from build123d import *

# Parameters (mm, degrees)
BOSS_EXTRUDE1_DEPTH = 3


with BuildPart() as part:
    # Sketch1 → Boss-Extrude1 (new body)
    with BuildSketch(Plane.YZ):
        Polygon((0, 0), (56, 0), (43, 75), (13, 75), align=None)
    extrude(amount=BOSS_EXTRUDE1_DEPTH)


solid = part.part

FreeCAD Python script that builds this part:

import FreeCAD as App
import Part
import Sketcher

V = App.Vector


def add_polygon(sketch, points):
    """Adds a closed chain of lines whose ends are joined by coincident constraints."""
    first, n = sketch.GeometryCount, len(points)
    for a, b in zip(points, points[1:] + points[:1]):
        sketch.addGeometry(Part.LineSegment(App.Vector(*a, 0), App.Vector(*b, 0)), False)
    for i in range(n):
        sketch.addConstraint(Sketcher.Constraint("Coincident", first + i, 2, first + (i + 1) % n, 1))

doc = App.newDocument("Part")
params = doc.addObject("Spreadsheet::Sheet", "Params")
for row, (alias, value) in enumerate([
    ("sketch1_width", "56 mm"),
    ("sketch1_width2", "30 mm"),
    ("pad1_length", "3 mm"),
], start=1):
    params.set(f"A{row}", alias)
    params.set(f"B{row}", "=" + value)
    params.setAlias(f"B{row}", alias)

body = doc.addObject("PartDesign::Body", "Body")

sketch1 = body.newObject("Sketcher::SketchObject", "Sketch")
sketch1.AttachmentSupport = (doc.getObject("YZ_Plane"), [""])
sketch1.MapMode = "FlatFace"
add_polygon(sketch1, [(0, 0), (56, 0), (43, 75), (13, 75)])
sketch1.addConstraint([
    Sketcher.Constraint("Horizontal", 0),
    Sketcher.Constraint("Horizontal", 2),
    Sketcher.Constraint("Coincident", 3, 2, -1, 1),
    Sketcher.Constraint("Equal", 1, 3),
    Sketcher.Constraint("DistanceX", 0, 1, 0, 2, 56.0),
    Sketcher.Constraint("DistanceX", 2, 2, 2, 1, 30.0),
    Sketcher.Constraint("DistanceY", -1, 1, 1, 2, 75.0),
])
sketch1.setExpression("Constraints[8]", "Params.sketch1_width")
sketch1.setExpression("Constraints[9]", "Params.sketch1_width2")
pad1 = body.newObject("PartDesign::Pad", "Pad")
pad1.Profile = sketch1
pad1.setExpression("Length", "Params.pad1_length")

doc.recompute()
